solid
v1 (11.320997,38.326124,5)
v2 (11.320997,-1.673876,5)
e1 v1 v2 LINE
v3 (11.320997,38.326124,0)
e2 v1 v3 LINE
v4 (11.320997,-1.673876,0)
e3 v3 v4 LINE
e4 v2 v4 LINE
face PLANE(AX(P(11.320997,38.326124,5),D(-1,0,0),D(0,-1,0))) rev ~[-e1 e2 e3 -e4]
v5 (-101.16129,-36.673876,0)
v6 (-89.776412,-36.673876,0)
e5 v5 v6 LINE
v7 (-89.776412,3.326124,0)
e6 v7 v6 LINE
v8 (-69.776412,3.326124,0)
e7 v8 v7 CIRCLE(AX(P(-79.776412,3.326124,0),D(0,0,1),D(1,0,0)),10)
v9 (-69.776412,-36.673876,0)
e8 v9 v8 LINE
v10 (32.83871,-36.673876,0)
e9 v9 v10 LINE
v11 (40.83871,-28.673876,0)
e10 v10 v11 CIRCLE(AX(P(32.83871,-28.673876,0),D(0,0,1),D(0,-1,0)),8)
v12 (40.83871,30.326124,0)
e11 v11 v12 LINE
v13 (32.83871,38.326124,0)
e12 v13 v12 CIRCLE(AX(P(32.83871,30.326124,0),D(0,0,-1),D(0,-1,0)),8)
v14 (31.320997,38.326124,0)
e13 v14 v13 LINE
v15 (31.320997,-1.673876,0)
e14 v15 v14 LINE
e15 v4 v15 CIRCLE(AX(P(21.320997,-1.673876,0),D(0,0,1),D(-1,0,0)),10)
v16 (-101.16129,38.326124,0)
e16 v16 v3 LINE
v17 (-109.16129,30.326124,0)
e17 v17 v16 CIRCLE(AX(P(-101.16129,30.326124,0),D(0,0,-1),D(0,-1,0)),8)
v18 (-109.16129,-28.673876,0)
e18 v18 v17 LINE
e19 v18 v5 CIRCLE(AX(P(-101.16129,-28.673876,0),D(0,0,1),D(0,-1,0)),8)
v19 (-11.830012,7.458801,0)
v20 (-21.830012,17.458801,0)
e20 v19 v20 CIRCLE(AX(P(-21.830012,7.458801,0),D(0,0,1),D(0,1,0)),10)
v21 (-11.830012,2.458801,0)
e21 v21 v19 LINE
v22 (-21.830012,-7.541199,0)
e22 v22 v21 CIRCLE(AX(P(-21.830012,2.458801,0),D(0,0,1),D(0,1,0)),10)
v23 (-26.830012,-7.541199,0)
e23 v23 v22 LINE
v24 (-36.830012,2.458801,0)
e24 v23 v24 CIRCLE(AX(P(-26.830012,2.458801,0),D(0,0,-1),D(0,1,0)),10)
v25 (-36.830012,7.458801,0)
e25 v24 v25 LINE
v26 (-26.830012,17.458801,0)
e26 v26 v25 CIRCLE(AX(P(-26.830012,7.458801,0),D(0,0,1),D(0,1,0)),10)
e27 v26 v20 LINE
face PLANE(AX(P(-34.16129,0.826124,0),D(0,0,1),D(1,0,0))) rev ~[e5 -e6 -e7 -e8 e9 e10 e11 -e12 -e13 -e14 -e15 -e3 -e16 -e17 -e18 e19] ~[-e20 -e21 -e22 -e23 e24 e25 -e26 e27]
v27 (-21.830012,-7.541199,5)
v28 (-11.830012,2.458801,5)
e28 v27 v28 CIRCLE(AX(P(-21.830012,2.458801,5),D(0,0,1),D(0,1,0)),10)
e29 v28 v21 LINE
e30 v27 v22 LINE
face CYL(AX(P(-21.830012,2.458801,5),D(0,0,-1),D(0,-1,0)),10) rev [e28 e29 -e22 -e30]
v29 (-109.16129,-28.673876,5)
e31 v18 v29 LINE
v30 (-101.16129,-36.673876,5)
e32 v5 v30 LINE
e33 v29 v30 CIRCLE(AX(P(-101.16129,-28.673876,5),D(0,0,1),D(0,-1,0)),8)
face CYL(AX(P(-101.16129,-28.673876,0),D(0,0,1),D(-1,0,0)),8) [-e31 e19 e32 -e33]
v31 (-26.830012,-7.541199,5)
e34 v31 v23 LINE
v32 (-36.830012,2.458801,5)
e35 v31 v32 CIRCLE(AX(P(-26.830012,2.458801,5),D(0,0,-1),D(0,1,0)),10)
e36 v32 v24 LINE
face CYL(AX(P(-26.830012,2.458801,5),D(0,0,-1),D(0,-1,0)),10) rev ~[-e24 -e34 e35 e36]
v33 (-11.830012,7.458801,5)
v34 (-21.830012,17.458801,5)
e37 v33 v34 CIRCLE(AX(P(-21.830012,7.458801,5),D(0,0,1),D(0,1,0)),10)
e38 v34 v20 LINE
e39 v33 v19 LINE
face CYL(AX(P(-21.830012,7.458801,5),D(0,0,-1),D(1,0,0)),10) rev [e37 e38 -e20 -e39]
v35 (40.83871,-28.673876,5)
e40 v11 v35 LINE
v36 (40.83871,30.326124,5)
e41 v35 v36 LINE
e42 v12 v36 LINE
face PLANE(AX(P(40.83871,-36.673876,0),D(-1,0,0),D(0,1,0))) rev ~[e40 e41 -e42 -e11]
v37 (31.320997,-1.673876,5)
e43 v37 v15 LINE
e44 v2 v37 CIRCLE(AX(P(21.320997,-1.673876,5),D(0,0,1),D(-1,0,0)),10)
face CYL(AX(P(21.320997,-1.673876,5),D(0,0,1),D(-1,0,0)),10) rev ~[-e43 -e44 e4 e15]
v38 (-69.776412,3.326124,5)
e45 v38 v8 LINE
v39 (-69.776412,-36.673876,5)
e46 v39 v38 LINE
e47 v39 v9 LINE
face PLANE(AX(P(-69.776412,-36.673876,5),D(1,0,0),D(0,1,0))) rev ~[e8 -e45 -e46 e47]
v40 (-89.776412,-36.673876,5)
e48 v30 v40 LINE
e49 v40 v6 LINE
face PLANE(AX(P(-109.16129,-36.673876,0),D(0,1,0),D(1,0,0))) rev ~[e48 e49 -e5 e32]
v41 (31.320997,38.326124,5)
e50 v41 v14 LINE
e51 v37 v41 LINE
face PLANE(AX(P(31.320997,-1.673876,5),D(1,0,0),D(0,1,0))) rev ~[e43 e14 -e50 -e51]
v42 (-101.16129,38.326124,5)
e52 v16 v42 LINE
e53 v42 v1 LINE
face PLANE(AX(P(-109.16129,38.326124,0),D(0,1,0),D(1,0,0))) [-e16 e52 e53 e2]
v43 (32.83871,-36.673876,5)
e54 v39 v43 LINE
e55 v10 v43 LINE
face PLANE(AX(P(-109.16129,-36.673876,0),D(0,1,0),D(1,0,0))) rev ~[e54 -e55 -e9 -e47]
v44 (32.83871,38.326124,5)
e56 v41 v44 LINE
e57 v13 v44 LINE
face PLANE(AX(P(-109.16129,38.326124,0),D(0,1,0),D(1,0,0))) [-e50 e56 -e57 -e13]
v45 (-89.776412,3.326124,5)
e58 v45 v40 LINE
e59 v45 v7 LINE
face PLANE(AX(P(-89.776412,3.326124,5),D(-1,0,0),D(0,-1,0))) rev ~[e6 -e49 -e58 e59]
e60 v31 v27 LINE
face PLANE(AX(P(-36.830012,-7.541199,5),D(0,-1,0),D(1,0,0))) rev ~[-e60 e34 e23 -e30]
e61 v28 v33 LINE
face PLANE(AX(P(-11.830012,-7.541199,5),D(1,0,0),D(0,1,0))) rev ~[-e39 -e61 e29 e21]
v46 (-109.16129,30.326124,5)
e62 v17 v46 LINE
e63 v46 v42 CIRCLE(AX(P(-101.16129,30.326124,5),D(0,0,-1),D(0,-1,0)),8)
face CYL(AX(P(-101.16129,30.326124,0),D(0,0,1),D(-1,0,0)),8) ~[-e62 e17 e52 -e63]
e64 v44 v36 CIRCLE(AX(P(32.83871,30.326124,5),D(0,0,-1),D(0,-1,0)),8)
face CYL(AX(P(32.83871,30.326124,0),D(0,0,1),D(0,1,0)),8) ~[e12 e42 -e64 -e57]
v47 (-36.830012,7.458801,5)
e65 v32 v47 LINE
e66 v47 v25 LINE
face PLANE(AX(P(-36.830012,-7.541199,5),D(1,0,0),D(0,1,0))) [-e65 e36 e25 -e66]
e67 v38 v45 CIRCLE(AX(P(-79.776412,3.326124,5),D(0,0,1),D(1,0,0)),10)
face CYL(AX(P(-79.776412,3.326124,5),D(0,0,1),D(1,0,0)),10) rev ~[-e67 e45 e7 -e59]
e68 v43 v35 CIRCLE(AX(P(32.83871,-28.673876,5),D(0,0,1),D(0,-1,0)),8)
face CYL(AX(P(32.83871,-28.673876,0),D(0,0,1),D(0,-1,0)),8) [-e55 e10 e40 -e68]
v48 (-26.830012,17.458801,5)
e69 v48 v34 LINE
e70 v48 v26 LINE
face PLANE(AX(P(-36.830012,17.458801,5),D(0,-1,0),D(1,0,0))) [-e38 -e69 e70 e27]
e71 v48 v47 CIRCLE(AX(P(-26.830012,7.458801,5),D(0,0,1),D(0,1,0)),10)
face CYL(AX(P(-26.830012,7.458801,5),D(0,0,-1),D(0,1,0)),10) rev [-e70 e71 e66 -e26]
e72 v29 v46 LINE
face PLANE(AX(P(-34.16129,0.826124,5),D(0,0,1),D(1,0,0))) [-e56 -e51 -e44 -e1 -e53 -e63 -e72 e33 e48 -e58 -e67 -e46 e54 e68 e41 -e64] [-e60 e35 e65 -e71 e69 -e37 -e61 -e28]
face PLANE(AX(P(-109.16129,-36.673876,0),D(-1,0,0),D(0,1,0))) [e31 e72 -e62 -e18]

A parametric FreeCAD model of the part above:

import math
import FreeCAD as App
import Part
import Sketcher

V = App.Vector


def edges_at(feature, points):
    """Names of the edges that pass closest to the given points."""
    edges = feature.Shape.Edges
    near = lambda p: min(range(len(edges)), key=lambda i: edges[i].distToShape(Part.Vertex(*p))[0])
    return sorted({f"Edge{near(p) + 1}" for p in points})


def add_polygon(sketch, points):
    """Adds a closed chain of lines whose ends are joined by coincident constraints."""
    first, n = sketch.GeometryCount, len(points)
    for a, b in zip(points, points[1:] + points[:1]):
        sketch.addGeometry(Part.LineSegment(App.Vector(*a, 0), App.Vector(*b, 0)), False)
    for i in range(n):
        sketch.addConstraint(Sketcher.Constraint("Coincident", first + i, 2, first + (i + 1) % n, 1))

doc = App.newDocument("Part")
body = doc.addObject("PartDesign::Body", "Body")

# Sketch on XY plane
sketch1 = body.newObject("Sketcher::SketchObject", "Sketch")
sketch1.AttachmentSupport = (doc.getObject("XY_Plane"), [""])
sketch1.MapMode = "FlatFace"
add_polygon(sketch1, [(-109, 38), (-109, -37), (41, -37), (41, 38)])  # lines 0-3
sketch1.addConstraint([
    Sketcher.Constraint("Vertical", 0),
    Sketcher.Constraint("Horizontal", 1),
    Sketcher.Constraint("Vertical", 2),
    Sketcher.Constraint("Horizontal", 3),
    Sketcher.Constraint("DistanceX", 1, 1, 1, 2, 150.0),
    Sketcher.Constraint("DistanceY", 0, 2, 0, 1, 75.0),
    Sketcher.Constraint("DistanceX", 0, 2, -1, 1, 109.16129),
    Sketcher.Constraint("DistanceY", 0, 2, -1, 1, 36.673876),
])
pad1 = body.newObject("PartDesign::Pad", "Pad")
pad1.Profile = sketch1
pad1.Length = 5

# Sketch on XY plane
sketch2 = body.newObject("Sketcher::SketchObject", "Sketch001")
sketch2.AttachmentSupport = (doc.getObject("XY_Plane"), [""])
sketch2.MapMode = "FlatFace"
sketch2.AttachmentOffset = App.Placement(V(0, 0, 5), App.Rotation())
sketch2.addGeometry([
    Part.LineSegment(V(-90, 3, 0), V(-90, -37, 0)),
    Part.LineSegment(V(-90, -37, 0), V(-70, -37, 0)),
    Part.LineSegment(V(-70, -37, 0), V(-70, 3, 0)),
    Part.ArcOfCircle(Part.Circle(V(-80, 3, 0), V(0, 0, 1), 10), math.radians(0), math.radians(180)),
], False)
sketch2.addConstraint([
    Sketcher.Constraint("Coincident", 0, 2, 1, 1),
    Sketcher.Constraint("Coincident", 1, 2, 2, 1),
    Sketcher.Constraint("Tangent", 2, 2, 3, 1),
    Sketcher.Constraint("Tangent", 3, 2, 0, 1),
    Sketcher.Constraint("Vertical", 0),
    Sketcher.Constraint("Horizontal", 1),
    Sketcher.Constraint("Vertical", 2),
    Sketcher.Constraint("Radius", 3, 10.0),
    Sketcher.Constraint("DistanceY", 0, 2, 0, 1, 40.0),
    Sketcher.Constraint("DistanceX", 3, 3, -1, 1, 79.776412),
    Sketcher.Constraint("DistanceY", -1, 1, 3, 3, 3.326124),
])
pocket1 = body.newObject("PartDesign::Pocket", "Pocket")
pocket1.Profile = sketch2
pocket1.Type = "ThroughAll"

# Sketch on XY plane
sketch3 = body.newObject("Sketcher::SketchObject", "Sketch002")
sketch3.AttachmentSupport = (doc.getObject("XY_Plane"), [""])
sketch3.MapMode = "FlatFace"
sketch3.AttachmentOffset = App.Placement(V(0, 0, 5), App.Rotation())
sketch3.addGeometry([
    Part.LineSegment(V(31, -2, 0), V(31, 38, 0)),
    Part.LineSegment(V(31, 38, 0), V(11, 38, 0)),
    Part.LineSegment(V(11, 38, 0), V(11, -2, 0)),
    Part.ArcOfCircle(Part.Circle(V(21, -2, 0), V(0, 0, 1), 10), math.radians(180), math.radians(360)),
], False)
sketch3.addConstraint([
    Sketcher.Constraint("Coincident", 0, 2, 1, 1),
    Sketcher.Constraint("Coincident", 1, 2, 2, 1),
    Sketcher.Constraint("Tangent", 2, 2, 3, 1),
    Sketcher.Constraint("Tangent", 3, 2, 0, 1),
    Sketcher.Constraint("Vertical", 0),
    Sketcher.Constraint("Horizontal", 1),
    Sketcher.Constraint("Vertical", 2),
    Sketcher.Constraint("Radius", 3, 10.0),
    Sketcher.Constraint("DistanceY", 0, 1, 0, 2, 40.0),
    Sketcher.Constraint("DistanceX", -1, 1, 3, 3, 21.320997),
    Sketcher.Constraint("DistanceY", 3, 3, -1, 1, 1.673876),
])
pocket2 = body.newObject("PartDesign::Pocket", "Pocket001")
pocket2.Profile = sketch3
pocket2.Type = "ThroughAll"

# Sketch on XY plane
sketch4 = body.newObject("Sketcher::SketchObject", "Sketch003")
sketch4.AttachmentSupport = (doc.getObject("XY_Plane"), [""])
sketch4.MapMode = "FlatFace"
sketch4.AttachmentOffset = App.Placement(V(0, 0, 5), App.Rotation())
add_polygon(sketch4, [(-37, 17), (-37, -8), (-12, -8), (-12, 17)])  # lines 0-3
sketch4.addConstraint([
    Sketcher.Constraint("Vertical", 0),
    Sketcher.Constraint("Horizontal", 1),
    Sketcher.Constraint("Vertical", 2),
    Sketcher.Constraint("Horizontal", 3),
    Sketcher.Constraint("Equal", 3, 0),
    Sketcher.Constraint("DistanceX", 1, 1, 1, 2, 25.0),
    Sketcher.Constraint("DistanceY", 0, 2, -1, 1, 7.541199),
    Sketcher.Constraint("DistanceX", 0, 2, -1, 1, 36.830012),
])
pocket3 = body.newObject("PartDesign::Pocket", "Pocket002")
pocket3.Profile = sketch4
pocket3.Type = "ThroughAll"
doc.recompute()

fillet = body.newObject("PartDesign::Fillet", "Fillet")
fillet.Base = (pocket3, edges_at(pocket3, [
    (-36.83, -7.541, 2.5),
    (-11.83, -7.541, 2.5),
    (-11.83, 17.459, 2.5),
    (-36.83, 17.459, 2.5),
]))
fillet.Radius = 10
doc.recompute()

fillet2 = body.newObject("PartDesign::Fillet", "Fillet001")
fillet2.Base = (fillet, edges_at(fillet, [
    (40.839, 38.326, 2.5),
    (-109.161, -36.674, 2.5),
    (40.839, -36.674, 2.5),
    (-109.161, 38.326, 2.5),
]))
fillet2.Radius = 8

doc.recompute()
